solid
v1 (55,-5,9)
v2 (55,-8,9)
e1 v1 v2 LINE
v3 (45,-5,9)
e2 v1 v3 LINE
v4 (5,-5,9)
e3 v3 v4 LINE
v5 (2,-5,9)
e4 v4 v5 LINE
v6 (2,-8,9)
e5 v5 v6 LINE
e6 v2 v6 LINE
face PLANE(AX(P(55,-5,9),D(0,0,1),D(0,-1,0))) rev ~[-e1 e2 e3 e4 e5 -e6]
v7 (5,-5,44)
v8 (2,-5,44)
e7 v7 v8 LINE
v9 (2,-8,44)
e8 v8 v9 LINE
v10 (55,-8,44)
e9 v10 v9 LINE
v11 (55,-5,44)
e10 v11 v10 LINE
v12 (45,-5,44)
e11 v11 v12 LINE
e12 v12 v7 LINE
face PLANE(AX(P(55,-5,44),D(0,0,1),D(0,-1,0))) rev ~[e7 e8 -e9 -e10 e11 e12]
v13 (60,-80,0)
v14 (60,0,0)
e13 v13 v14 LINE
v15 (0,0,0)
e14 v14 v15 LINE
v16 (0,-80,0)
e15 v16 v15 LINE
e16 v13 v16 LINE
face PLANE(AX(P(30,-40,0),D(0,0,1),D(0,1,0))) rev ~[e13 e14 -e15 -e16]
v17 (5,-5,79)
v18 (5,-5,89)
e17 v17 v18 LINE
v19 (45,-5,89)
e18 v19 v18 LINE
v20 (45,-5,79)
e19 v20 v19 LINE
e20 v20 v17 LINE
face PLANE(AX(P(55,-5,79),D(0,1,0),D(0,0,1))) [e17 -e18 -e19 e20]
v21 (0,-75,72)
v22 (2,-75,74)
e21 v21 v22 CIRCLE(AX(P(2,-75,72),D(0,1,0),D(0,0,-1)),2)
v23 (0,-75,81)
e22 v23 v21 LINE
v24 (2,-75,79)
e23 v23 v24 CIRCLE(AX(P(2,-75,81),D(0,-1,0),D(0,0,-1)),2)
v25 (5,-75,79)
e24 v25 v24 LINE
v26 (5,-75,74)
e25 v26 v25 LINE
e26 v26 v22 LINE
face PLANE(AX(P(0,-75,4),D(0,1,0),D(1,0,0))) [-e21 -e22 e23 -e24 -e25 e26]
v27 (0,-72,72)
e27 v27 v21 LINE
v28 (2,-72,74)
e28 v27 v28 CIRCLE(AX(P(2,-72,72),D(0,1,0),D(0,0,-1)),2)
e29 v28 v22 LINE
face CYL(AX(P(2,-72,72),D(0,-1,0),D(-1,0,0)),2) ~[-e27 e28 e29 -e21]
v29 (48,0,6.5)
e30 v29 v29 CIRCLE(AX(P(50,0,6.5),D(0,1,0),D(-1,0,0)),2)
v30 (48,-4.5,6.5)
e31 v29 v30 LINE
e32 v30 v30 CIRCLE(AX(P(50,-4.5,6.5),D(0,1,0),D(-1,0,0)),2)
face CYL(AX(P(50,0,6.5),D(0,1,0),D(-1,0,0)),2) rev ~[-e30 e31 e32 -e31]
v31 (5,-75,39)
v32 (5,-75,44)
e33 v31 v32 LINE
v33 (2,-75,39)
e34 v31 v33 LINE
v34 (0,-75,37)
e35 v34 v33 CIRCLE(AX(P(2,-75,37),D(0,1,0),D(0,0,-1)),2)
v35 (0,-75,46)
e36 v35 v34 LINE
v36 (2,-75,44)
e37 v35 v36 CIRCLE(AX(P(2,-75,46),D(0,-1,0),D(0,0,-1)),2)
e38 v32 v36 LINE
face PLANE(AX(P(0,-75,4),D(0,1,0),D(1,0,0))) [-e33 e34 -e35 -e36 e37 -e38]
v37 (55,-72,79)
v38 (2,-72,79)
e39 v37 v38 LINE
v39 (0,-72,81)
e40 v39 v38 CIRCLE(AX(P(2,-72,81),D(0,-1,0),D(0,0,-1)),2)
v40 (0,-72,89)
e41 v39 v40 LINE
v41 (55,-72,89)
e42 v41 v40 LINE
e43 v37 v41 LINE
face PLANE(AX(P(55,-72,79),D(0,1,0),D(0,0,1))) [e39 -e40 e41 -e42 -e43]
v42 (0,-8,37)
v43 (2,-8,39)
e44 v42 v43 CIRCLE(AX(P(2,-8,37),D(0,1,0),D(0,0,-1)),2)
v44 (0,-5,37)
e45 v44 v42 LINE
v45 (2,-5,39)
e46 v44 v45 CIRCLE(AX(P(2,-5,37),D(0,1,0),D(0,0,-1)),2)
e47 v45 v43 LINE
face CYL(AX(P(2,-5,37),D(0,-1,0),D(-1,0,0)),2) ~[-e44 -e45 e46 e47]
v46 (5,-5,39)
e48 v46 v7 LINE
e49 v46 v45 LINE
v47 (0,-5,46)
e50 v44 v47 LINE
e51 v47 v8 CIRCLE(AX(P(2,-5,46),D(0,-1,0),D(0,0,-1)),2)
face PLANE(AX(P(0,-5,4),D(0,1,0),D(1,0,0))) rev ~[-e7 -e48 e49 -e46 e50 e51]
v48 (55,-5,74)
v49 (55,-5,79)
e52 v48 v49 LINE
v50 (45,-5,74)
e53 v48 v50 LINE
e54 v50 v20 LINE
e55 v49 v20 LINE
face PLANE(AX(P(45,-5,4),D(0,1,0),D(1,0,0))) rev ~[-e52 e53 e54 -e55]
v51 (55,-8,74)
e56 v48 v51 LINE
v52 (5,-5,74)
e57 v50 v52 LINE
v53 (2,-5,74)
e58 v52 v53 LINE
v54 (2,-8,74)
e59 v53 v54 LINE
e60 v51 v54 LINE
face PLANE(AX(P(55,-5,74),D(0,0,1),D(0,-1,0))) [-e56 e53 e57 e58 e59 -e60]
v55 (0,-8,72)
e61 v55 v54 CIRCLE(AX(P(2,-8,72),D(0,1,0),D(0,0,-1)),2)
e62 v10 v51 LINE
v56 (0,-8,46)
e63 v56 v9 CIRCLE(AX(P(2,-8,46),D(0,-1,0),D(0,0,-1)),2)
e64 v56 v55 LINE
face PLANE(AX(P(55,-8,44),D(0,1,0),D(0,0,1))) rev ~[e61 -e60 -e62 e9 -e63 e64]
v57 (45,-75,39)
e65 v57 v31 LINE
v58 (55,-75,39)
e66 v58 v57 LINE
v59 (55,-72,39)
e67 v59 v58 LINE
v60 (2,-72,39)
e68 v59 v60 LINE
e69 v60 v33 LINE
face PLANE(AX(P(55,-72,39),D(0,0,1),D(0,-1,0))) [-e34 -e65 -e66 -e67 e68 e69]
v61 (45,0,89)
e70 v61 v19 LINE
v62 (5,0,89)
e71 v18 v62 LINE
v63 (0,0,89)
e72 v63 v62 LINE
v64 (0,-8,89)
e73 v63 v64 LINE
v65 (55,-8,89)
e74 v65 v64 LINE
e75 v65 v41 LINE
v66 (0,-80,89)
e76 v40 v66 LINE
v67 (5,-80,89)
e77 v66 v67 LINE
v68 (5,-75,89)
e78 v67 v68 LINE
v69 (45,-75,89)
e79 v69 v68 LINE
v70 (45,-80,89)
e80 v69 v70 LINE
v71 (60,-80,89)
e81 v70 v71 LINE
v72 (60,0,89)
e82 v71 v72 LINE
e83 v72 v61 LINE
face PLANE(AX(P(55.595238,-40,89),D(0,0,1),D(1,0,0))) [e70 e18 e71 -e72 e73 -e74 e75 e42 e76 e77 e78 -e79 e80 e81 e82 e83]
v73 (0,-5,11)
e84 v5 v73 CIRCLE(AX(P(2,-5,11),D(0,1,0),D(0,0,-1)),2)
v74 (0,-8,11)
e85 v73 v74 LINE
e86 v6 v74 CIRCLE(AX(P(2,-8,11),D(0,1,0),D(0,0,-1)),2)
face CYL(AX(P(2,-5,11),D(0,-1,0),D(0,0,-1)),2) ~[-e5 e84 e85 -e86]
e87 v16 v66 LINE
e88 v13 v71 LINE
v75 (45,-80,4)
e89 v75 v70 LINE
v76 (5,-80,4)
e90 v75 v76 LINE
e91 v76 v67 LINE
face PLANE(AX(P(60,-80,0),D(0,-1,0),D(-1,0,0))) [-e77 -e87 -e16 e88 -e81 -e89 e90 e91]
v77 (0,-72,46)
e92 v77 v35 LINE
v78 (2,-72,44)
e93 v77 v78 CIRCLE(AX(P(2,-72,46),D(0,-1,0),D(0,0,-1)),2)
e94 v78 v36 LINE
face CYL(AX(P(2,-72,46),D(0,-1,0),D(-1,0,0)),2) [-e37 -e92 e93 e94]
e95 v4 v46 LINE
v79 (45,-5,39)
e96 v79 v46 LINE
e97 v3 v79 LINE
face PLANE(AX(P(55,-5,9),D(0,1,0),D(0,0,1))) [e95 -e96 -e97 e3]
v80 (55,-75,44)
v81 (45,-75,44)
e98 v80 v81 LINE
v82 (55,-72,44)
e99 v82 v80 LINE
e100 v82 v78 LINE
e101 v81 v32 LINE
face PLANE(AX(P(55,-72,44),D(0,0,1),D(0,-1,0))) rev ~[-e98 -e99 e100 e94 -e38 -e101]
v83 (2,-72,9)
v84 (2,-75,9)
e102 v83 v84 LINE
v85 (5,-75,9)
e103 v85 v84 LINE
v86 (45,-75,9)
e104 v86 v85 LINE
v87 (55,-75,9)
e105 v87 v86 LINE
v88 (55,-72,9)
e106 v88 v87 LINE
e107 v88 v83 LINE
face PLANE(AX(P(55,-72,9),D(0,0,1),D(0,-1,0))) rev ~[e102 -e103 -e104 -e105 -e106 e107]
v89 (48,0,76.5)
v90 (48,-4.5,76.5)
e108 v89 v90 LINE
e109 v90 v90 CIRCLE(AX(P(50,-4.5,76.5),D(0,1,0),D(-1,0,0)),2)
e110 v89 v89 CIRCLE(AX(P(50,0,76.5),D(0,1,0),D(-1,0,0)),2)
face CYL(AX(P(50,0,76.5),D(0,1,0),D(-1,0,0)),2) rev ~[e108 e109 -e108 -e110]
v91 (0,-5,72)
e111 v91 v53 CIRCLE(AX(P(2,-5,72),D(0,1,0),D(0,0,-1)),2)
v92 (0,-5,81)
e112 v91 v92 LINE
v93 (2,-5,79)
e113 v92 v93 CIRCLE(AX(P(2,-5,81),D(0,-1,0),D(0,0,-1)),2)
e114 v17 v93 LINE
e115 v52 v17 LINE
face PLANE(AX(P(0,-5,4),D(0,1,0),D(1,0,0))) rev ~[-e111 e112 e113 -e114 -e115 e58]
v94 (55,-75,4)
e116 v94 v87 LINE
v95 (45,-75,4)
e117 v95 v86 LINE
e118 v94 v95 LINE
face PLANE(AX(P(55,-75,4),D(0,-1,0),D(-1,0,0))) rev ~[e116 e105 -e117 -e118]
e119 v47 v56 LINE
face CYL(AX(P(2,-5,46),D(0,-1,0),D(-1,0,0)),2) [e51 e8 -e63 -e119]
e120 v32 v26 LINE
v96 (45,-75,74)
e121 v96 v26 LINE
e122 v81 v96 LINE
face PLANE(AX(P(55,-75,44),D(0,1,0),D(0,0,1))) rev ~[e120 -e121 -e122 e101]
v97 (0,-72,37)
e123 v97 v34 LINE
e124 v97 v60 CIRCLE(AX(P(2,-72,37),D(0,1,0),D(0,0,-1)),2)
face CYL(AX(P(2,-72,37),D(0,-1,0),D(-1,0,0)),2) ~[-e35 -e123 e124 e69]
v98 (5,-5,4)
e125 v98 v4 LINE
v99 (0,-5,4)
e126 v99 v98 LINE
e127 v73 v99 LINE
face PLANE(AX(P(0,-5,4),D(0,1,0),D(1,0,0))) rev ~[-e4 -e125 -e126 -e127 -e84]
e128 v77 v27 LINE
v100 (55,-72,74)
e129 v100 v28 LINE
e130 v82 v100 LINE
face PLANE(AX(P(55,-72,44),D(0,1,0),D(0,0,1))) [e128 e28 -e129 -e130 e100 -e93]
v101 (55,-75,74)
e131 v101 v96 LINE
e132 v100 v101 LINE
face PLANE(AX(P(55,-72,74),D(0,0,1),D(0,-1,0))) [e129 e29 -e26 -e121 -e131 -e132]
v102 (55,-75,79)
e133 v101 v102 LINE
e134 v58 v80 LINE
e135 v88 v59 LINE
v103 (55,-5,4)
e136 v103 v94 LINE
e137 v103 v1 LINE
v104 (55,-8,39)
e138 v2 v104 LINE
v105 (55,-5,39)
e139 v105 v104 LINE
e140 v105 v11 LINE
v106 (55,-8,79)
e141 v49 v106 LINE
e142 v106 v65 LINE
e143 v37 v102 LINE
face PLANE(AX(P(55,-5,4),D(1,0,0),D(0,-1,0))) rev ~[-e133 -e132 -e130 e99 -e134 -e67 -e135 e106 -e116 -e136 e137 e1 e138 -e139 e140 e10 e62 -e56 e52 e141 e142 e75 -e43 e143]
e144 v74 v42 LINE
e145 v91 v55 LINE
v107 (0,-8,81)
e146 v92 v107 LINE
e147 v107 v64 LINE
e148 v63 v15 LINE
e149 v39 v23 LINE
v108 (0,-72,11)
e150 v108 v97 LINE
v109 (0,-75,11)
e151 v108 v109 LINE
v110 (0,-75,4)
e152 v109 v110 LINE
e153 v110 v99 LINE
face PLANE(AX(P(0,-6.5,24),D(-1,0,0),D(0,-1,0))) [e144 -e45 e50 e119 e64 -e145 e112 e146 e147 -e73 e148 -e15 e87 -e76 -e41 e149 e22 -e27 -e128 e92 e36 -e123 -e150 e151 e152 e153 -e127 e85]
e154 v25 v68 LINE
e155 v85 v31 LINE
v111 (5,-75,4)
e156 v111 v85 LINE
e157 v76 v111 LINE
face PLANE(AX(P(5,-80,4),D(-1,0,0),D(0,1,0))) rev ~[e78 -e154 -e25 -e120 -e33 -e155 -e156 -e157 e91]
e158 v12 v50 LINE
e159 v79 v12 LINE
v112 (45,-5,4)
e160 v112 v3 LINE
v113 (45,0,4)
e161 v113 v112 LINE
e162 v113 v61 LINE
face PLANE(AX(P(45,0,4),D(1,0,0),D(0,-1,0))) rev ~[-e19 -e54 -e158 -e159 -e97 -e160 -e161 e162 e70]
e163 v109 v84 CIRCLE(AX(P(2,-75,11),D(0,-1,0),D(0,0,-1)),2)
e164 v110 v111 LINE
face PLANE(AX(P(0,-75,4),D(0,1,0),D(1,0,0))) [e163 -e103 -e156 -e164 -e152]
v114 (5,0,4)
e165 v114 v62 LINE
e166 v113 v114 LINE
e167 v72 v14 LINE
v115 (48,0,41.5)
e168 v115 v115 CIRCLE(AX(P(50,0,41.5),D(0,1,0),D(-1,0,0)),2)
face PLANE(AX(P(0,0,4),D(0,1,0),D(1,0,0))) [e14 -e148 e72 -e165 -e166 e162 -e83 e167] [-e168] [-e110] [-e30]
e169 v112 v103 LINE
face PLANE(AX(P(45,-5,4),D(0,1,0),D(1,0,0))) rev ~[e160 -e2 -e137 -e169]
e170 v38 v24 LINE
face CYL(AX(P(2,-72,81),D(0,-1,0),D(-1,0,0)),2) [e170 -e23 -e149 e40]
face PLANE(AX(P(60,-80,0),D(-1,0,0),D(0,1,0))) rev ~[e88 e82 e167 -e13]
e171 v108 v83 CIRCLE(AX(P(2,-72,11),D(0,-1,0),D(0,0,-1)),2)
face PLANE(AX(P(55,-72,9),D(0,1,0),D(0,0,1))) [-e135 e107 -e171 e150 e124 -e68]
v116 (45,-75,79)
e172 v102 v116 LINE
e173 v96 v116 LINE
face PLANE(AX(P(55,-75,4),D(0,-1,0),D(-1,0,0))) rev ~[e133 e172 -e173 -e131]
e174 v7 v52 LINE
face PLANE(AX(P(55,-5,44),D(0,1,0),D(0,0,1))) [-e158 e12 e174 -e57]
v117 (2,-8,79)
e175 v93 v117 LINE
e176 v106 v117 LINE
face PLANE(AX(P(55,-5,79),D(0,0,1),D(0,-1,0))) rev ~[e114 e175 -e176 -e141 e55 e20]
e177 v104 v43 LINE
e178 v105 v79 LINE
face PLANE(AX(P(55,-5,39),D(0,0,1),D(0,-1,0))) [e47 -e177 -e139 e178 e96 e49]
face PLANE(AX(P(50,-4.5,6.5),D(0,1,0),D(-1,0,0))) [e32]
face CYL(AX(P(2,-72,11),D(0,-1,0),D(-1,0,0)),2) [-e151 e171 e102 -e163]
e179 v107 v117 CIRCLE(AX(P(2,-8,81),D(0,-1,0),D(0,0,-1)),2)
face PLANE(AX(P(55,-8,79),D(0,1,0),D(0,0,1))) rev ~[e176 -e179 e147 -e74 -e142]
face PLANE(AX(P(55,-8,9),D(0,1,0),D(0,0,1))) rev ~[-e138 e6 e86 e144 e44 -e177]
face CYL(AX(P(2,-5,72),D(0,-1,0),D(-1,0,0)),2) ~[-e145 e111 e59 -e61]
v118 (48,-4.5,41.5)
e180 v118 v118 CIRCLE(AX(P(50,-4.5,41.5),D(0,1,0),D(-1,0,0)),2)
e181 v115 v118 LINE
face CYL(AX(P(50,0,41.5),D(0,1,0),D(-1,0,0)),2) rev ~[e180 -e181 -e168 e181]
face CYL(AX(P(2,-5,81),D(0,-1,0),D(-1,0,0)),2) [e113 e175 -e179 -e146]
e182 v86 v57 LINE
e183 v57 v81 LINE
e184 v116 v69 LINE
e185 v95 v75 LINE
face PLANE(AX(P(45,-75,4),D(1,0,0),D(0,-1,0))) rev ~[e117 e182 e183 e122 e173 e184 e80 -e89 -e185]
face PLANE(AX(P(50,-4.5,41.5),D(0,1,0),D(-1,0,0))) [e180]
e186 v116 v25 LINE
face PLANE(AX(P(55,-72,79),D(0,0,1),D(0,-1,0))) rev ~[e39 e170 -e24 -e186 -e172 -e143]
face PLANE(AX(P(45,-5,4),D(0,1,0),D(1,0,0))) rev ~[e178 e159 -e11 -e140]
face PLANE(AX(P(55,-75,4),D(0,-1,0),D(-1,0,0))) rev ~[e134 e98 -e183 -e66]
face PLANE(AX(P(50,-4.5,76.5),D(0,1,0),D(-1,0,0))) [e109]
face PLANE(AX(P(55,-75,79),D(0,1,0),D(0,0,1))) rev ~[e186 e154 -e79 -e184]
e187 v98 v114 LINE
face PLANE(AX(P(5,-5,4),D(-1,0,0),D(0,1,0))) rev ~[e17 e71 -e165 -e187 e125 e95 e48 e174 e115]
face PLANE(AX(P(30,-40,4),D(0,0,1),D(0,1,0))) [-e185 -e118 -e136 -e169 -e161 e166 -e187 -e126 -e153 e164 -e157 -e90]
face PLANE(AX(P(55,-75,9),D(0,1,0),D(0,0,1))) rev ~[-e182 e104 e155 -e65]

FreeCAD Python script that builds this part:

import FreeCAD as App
import Part
import Sketcher
from FreeCAD import Vector
Q = App.Units.Quantity


def edges_at(feature, points):
    """Names of the edges that pass closest to the given points."""
    edges = feature.Shape.Edges
    near = lambda p: min(range(len(edges)), key=lambda i: edges[i].distToShape(Part.Vertex(*p))[0])
    return sorted({f"Edge{near(p) + 1}" for p in points})


def add_polygon(sketch, points):
    """Adds a closed chain of lines whose ends are joined by coincident constraints."""
    first, n = sketch.GeometryCount, len(points)
    for a, b in zip(points, points[1:] + points[:1]):
        sketch.addGeometry(Part.LineSegment(App.Vector(*a, 0), App.Vector(*b, 0)), False)
    for i in range(n):
        sketch.addConstraint(Sketcher.Constraint("Coincident", first + i, 2, first + (i + 1) % n, 1))

doc = App.newDocument("Part")
body = doc.addObject("PartDesign::Body", "Body")

# Sketch on XY plane
sketch1 = body.newObject("Sketcher::SketchObject", "Sketch")
sketch1.AttachmentSupport = (doc.getObject("XY_Plane"), [""])
sketch1.MapMode = "FlatFace"
add_polygon(sketch1, [(0, -80), (60, -80), (60, 0), (0, 0)])  # lines 0-3
sketch1.addConstraint([
    Sketcher.Constraint("Horizontal", 0),
    Sketcher.Constraint("Vertical", 1),
    Sketcher.Constraint("Horizontal", 2),
    Sketcher.Constraint("Vertical", 3),
    Sketcher.Constraint("Coincident", 2, 2, -1, 1),
    Sketcher.Constraint("DistanceX", 0, 1, 0, 2, Q("60 mm")),
    Sketcher.Constraint("DistanceY", 1, 1, 1, 2, Q("80 mm")),
])
pad1 = body.newObject("PartDesign::Pad", "Pad")
pad1.Profile = sketch1
pad1.Length = 4

# Sketch on XY plane
sketch2 = body.newObject("Sketcher::SketchObject", "Sketch001")
sketch2.AttachmentSupport = (doc.getObject("XY_Plane"), [""])
sketch2.MapMode = "FlatFace"
sketch2.AttachmentOffset = App.Placement(Vector(0, 0, 4), App.Rotation())
add_polygon(sketch2, [(0, 0), (0, -5), (5, -5), (5, 0)])  # lines 0-3
add_polygon(sketch2, [(0, -75), (0, -80), (5, -80), (5, -75)])  # lines 4-7
add_polygon(sketch2, [(60, 0), (45, 0), (45, -5), (55, -5), (55, -75), (45, -75), (45, -80), (60, -80)])  # lines 8-15
sketch2.addConstraint([
    Sketcher.Constraint("Vertical", 0),
    Sketcher.Constraint("Horizontal", 1),
    Sketcher.Constraint("Vertical", 2),
    Sketcher.Constraint("Horizontal", 3),
    Sketcher.Constraint("Vertical", 4),
    Sketcher.Constraint("Horizontal", 5),
    Sketcher.Constraint("Vertical", 6),
    Sketcher.Constraint("Horizontal", 7),
    Sketcher.Constraint("Horizontal", 8),
    Sketcher.Constraint("Vertical", 9),
    Sketcher.Constraint("Horizontal", 10),
    Sketcher.Constraint("Vertical", 11),
    Sketcher.Constraint("Horizontal", 12),
    Sketcher.Constraint("Vertical", 13),
    Sketcher.Constraint("Horizontal", 14),
    Sketcher.Constraint("Vertical", 15),
    Sketcher.Constraint("Coincident", 3, 2, -1, 1),
    Sketcher.Constraint("PointOnObject", 4, 2, -2),
    Sketcher.Constraint("PointOnObject", 8, 2, -1),
    Sketcher.Constraint("Horizontal", 1, 2, 9, 2),
    Sketcher.Constraint("Horizontal", 7, 2, 11, 2),
    Sketcher.Constraint("Horizontal", 5, 2, 13, 2),
    Sketcher.Constraint("Vertical", 2, 2, 5, 2),
    Sketcher.Constraint("Vertical", 9, 2, 12, 2),
    Sketcher.Constraint("Equal", 7, 0),
    Sketcher.Constraint("Equal", 2, 4),
    Sketcher.Constraint("DistanceX", 1, 1, 1, 2, Q("5 mm")),
    Sketcher.Constraint("DistanceX", 8, 2, 8, 1, Q("15 mm")),
    Sketcher.Constraint("DistanceX", 10, 1, 10, 2, Q("10 mm")),
    Sketcher.Constraint("DistanceY", 11, 2, 11, 1, Q("70 mm")),
    Sketcher.Constraint("DistanceX", -1, 1, 8, 2, Q("45 mm")),
])
pad2 = body.newObject("PartDesign::Pad", "Pad001")
pad2.Profile = sketch2
pad2.Length = 85

# Sketch on YZ plane
sketch3 = body.newObject("Sketcher::SketchObject", "Sketch002")
sketch3.AttachmentSupport = (doc.getObject("YZ_Plane"), [""])
sketch3.MapMode = "FlatFace"
sketch3.AttachmentOffset = App.Placement(Vector(0, 0, 55), App.Rotation())
add_polygon(sketch3, [(-5, 39), (-5, 9), (-8, 9), (-8, 39)])  # lines 0-3
add_polygon(sketch3, [(-5, 74), (-5, 44), (-8, 44), (-8, 74)])  # lines 4-7
add_polygon(sketch3, [(-5, 89), (-5, 79), (-8, 79), (-8, 89)])  # lines 8-11
add_polygon(sketch3, [(-72, 39), (-72, 9), (-75, 9), (-75, 39)])  # lines 12-15
add_polygon(sketch3, [(-72, 74), (-72, 44), (-75, 44), (-75, 74)])  # lines 16-19
add_polygon(sketch3, [(-72, 89), (-72, 79), (-75, 79), (-75, 89)])  # lines 20-23
sketch3.addConstraint([
    Sketcher.Constraint("Vertical", 0),
    Sketcher.Constraint("Horizontal", 1),
    Sketcher.Constraint("Vertical", 2),
    Sketcher.Constraint("Horizontal", 3),
    Sketcher.Constraint("Vertical", 4),
    Sketcher.Constraint("Horizontal", 5),
    Sketcher.Constraint("Vertical", 6),
    Sketcher.Constraint("Horizontal", 7),
    Sketcher.Constraint("Vertical", 8),
    Sketcher.Constraint("Horizontal", 9),
    Sketcher.Constraint("Vertical", 10),
    Sketcher.Constraint("Horizontal", 11),
    Sketcher.Constraint("Vertical", 12),
    Sketcher.Constraint("Horizontal", 13),
    Sketcher.Constraint("Vertical", 14),
    Sketcher.Constraint("Horizontal", 15),
    Sketcher.Constraint("Vertical", 16),
    Sketcher.Constraint("Horizontal", 17),
    Sketcher.Constraint("Vertical", 18),
    Sketcher.Constraint("Horizontal", 19),
    Sketcher.Constraint("Vertical", 20),
    Sketcher.Constraint("Horizontal", 21),
    Sketcher.Constraint("Vertical", 22),
    Sketcher.Constraint("Horizontal", 23),
    Sketcher.Constraint("Horizontal", 1, 2, 12, 2),
    Sketcher.Constraint("Horizontal", 3, 2, 14, 2),
    Sketcher.Constraint("Horizontal", 5, 2, 16, 2),
    Sketcher.Constraint("Horizontal", 7, 2, 18, 2),
    Sketcher.Constraint("Horizontal", 9, 2, 20, 2),
    Sketcher.Constraint("Horizontal", 11, 2, 22, 2),
    Sketcher.Constraint("Vertical", 3, 2, 4, 2),
    Sketcher.Constraint("Vertical", 2, 2, 5, 2),
    Sketcher.Constraint("Vertical", 7, 2, 8, 2),
    Sketcher.Constraint("Vertical", 6, 2, 9, 2),
    Sketcher.Constraint("Vertical", 15, 2, 16, 2),
    Sketcher.Constraint("Vertical", 14, 2, 17, 2),
    Sketcher.Constraint("Vertical", 19, 2, 20, 2),
    Sketcher.Constraint("Vertical", 18, 2, 21, 2),
    Sketcher.Constraint("Equal", 11, 13),
    Sketcher.Constraint("Equal", 2, 4),
    Sketcher.Constraint("DistanceX", 1, 2, 1, 1, Q("3 mm")),
    Sketcher.Constraint("DistanceY", 0, 2, 0, 1, Q("30 mm")),
    Sketcher.Constraint("DistanceY", 8, 2, 8, 1, Q("10 mm")),
    Sketcher.Constraint("DistanceX", 0, 2, -1, 1, Q("5 mm")),
    Sketcher.Constraint("DistanceY", -1, 1, 0, 2, Q("9 mm")),
    Sketcher.Constraint("DistanceY", -1, 1, 4, 2, Q("44 mm")),
    Sketcher.Constraint("DistanceY", -1, 1, 8, 2, Q("79 mm")),
    Sketcher.Constraint("DistanceX", 12, 2, -1, 1, Q("72 mm")),
])
pad3 = body.newObject("PartDesign::Pad", "Pad002")
pad3.Profile = sketch3
pad3.Length = 55
pad3.Reversed = True
doc.recompute()

fillet = body.newObject("PartDesign::Fillet", "Fillet")
fillet.Base = (pad3, edges_at(pad3, [
    (0, -6.5, 79),
    (0, -73.5, 39),
    (0, -73.5, 9),
    (0, -73.5, 74),
    (0, -73.5, 44),
    (0, -73.5, 79),
    (0, -6.5, 9),
    (0, -6.5, 39),
    (0, -6.5, 44),
    (0, -6.5, 74),
]))
fillet.Radius = 2

# Sketch on XZ plane
sketch4 = body.newObject("Sketcher::SketchObject", "Sketch003")
sketch4.AttachmentSupport = (doc.getObject("XZ_Plane"), [""])
sketch4.MapMode = "FlatFace"
sketch4.addGeometry([
    Part.Circle(Vector(50, 76.5, 0), Vector(0, 0, 1), 2),
    Part.Circle(Vector(50, 41.5, 0), Vector(0, 0, 1), 2),
    Part.Circle(Vector(50, 6.5, 0), Vector(0, 0, 1), 2),
], False)
sketch4.addConstraint([
    Sketcher.Constraint("Equal", 0, 1),
    Sketcher.Constraint("Equal", 1, 2),
    Sketcher.Constraint("Vertical", 0, 3, 1, 3),
    Sketcher.Constraint("Vertical", 1, 3, 2, 3),
    Sketcher.Constraint("Diameter", 0, Q("4 mm")),
    Sketcher.Constraint("DistanceX", -1, 1, 0, 3, Q("50 mm")),
    Sketcher.Constraint("DistanceY", 1, 3, 0, 3, Q("35 mm")),
    Sketcher.Constraint("DistanceY", 2, 3, 1, 3, Q("35 mm")),
    Sketcher.Constraint("DistanceY", -1, 1, 0, 3, Q("76.5 mm")),
])
pocket1 = body.newObject("PartDesign::Pocket", "Pocket")
pocket1.Profile = sketch4
pocket1.Length = 4.5
pocket1.Reversed = True

doc.recompute()
